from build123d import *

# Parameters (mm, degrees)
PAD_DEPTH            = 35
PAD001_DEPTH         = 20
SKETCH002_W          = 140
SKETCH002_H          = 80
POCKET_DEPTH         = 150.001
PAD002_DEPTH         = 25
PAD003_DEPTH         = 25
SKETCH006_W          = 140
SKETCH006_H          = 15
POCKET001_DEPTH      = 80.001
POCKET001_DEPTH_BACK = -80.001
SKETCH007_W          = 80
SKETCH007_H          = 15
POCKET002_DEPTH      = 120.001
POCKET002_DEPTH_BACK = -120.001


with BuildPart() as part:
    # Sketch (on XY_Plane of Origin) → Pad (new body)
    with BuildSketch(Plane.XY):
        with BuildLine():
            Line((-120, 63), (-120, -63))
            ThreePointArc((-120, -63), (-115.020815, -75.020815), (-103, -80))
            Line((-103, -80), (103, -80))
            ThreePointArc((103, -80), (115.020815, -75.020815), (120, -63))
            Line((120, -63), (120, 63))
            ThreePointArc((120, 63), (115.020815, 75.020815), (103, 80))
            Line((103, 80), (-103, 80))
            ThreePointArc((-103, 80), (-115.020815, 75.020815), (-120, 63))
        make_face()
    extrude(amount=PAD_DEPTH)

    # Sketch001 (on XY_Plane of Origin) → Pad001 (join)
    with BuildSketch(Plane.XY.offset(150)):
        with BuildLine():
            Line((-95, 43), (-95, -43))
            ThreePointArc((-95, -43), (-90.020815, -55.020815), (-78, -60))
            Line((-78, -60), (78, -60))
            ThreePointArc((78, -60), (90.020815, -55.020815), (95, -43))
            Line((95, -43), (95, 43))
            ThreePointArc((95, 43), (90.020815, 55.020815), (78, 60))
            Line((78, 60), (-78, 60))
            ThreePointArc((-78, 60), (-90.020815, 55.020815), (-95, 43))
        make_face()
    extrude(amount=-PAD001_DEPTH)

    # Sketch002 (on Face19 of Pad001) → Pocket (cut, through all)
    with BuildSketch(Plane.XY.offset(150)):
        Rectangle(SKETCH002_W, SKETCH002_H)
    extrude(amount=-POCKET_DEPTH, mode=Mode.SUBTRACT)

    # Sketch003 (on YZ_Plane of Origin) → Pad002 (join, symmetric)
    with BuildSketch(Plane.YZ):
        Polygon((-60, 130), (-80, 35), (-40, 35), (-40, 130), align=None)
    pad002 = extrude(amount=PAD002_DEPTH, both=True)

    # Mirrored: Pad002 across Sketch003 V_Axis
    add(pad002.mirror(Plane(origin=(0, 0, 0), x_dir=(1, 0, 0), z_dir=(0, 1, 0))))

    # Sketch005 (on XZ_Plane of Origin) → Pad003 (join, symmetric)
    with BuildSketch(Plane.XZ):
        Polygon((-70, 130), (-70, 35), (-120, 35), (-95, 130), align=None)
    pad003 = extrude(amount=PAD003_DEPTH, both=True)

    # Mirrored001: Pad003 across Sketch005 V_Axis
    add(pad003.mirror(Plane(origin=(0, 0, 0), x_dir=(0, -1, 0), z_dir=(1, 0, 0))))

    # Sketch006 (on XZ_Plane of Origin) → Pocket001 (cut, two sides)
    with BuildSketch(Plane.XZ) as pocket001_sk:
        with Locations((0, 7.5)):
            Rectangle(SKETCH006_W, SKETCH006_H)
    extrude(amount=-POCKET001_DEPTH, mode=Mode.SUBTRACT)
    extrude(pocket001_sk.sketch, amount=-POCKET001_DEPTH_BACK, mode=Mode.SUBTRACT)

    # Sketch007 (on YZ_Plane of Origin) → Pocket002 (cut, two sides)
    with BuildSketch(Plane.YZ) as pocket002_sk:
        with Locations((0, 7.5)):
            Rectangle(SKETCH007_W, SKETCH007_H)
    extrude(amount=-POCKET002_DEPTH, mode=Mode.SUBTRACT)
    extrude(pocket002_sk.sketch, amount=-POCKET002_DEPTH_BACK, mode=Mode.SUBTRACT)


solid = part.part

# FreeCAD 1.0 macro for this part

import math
import FreeCAD as App
import Part
import Sketcher
Q = App.Units.Quantity

doc = App.newDocument("Part")
body = doc.addObject("PartDesign::Body", "Body")
body.AllowCompound = True

# Sketch on XY plane
sketch1 = doc.addObject("Sketcher::SketchObject", "Sketch")
body.addObject(sketch1)
sketch1.AttachmentSupport = (doc.XY_Plane, [""])
sketch1.MapMode = "FlatFace"
sketch1.addGeometry([
    Part.LineSegment(App.Vector(-120, 63, 0), App.Vector(-120, -63, 0)),  # 0
    Part.ArcOfCircle(Part.Circle(App.Vector(-103, -63, 0), App.Vector(0, 0, 1), 17), math.radians(-180), math.radians(-90)),  # 1
    Part.LineSegment(App.Vector(-103, -80, 0), App.Vector(103, -80, 0)),  # 2
    Part.ArcOfCircle(Part.Circle(App.Vector(103, -63, 0), App.Vector(0, 0, 1), 17), math.radians(-90), math.radians(0)),  # 3
    Part.LineSegment(App.Vector(120, -63, 0), App.Vector(120, 63, 0)),  # 4
    Part.ArcOfCircle(Part.Circle(App.Vector(103, 63, 0), App.Vector(0, 0, 1), 17), math.radians(0), math.radians(90)),  # 5
    Part.LineSegment(App.Vector(103, 80, 0), App.Vector(-103, 80, 0)),  # 6
    Part.ArcOfCircle(Part.Circle(App.Vector(-103, 63, 0), App.Vector(0, 0, 1), 17), math.radians(90), math.radians(180)),  # 7
], False)
sketch1.addConstraint([
    Sketcher.Constraint("Tangent", 0, 2, 1, 1),
    Sketcher.Constraint("Tangent", 1, 2, 2, 1),
    Sketcher.Constraint("Tangent", 2, 2, 3, 1),
    Sketcher.Constraint("Tangent", 3, 2, 4, 1),
    Sketcher.Constraint("Tangent", 4, 2, 5, 1),
    Sketcher.Constraint("Tangent", 5, 2, 6, 1),
    Sketcher.Constraint("Tangent", 6, 2, 7, 1),
    Sketcher.Constraint("Tangent", 7, 2, 0, 1),
    Sketcher.Constraint("Vertical", 0),
    Sketcher.Constraint("Horizontal", 2),
    Sketcher.Constraint("Vertical", 4),
    Sketcher.Constraint("Horizontal", 6),
    Sketcher.Constraint("Equal", 1, 3),
    Sketcher.Constraint("Equal", 3, 5),
    Sketcher.Constraint("Equal", 5, 7),
    Sketcher.Constraint("Symmetric", 1, 3, 5, 3, -1, 1),
    Sketcher.Constraint("Radius", 1, Q("17.000001 mm")),
    Sketcher.Constraint("DistanceX", 2, 1, 2, 2, Q("206 mm")),
    Sketcher.Constraint("DistanceY", 0, 2, 0, 1, Q("126 mm")),
])
pad1 = doc.addObject("PartDesign::Pad", "Pad")
body.addObject(pad1)
pad1.Profile = sketch1
pad1.Length = 35

# Sketch on XY plane
sketch2 = doc.addObject("Sketcher::SketchObject", "Sketch001")
body.addObject(sketch2)
sketch2.AttachmentSupport = (doc.XY_Plane, [""])
sketch2.MapMode = "FlatFace"
sketch2.AttachmentOffset = App.Placement(App.Vector(0, 0, 150), App.Rotation())
sketch2.addGeometry([
    Part.LineSegment(App.Vector(-95, 43, 0), App.Vector(-95, -43, 0)),  # 0
    Part.ArcOfCircle(Part.Circle(App.Vector(-78, -43, 0), App.Vector(0, 0, 1), 17), math.radians(-180), math.radians(-90)),  # 1
    Part.LineSegment(App.Vector(-78, -60, 0), App.Vector(78, -60, 0)),  # 2
    Part.ArcOfCircle(Part.Circle(App.Vector(78, -43, 0), App.Vector(0, 0, 1), 17), math.radians(-90), math.radians(0)),  # 3
    Part.LineSegment(App.Vector(95, -43, 0), App.Vector(95, 43, 0)),  # 4
    Part.ArcOfCircle(Part.Circle(App.Vector(78, 43, 0), App.Vector(0, 0, 1), 17), math.radians(0), math.radians(90)),  # 5
    Part.LineSegment(App.Vector(78, 60, 0), App.Vector(-78, 60, 0)),  # 6
    Part.ArcOfCircle(Part.Circle(App.Vector(-78, 43, 0), App.Vector(0, 0, 1), 17), math.radians(90), math.radians(180)),  # 7
], False)
sketch2.addConstraint([
    Sketcher.Constraint("Tangent", 0, 2, 1, 1),
    Sketcher.Constraint("Tangent", 1, 2, 2, 1),
    Sketcher.Constraint("Tangent", 2, 2, 3, 1),
    Sketcher.Constraint("Tangent", 3, 2, 4, 1),
    Sketcher.Constraint("Tangent", 4, 2, 5, 1),
    Sketcher.Constraint("Tangent", 5, 2, 6, 1),
    Sketcher.Constraint("Tangent", 6, 2, 7, 1),
    Sketcher.Constraint("Tangent", 7, 2, 0, 1),
    Sketcher.Constraint("Vertical", 0),
    Sketcher.Constraint("Horizontal", 2),
    Sketcher.Constraint("Vertical", 4),
    Sketcher.Constraint("Horizontal", 6),
    Sketcher.Constraint("Equal", 1, 3),
    Sketcher.Constraint("Equal", 3, 5),
    Sketcher.Constraint("Equal", 5, 7),
    Sketcher.Constraint("Symmetric", 1, 3, 5, 3, -1, 1),
    Sketcher.Constraint("Radius", 1, Q("17.000001 mm")),
    Sketcher.Constraint("DistanceX", 2, 1, 2, 2, Q("156 mm")),
    Sketcher.Constraint("DistanceY", 0, 2, 0, 1, Q("86 mm")),
])
pad2 = doc.addObject("PartDesign::Pad", "Pad001")
body.addObject(pad2)
pad2.Profile = sketch2
pad2.Length = 20
pad2.Reversed = True

# Sketch on XY plane
sketch3 = doc.addObject("Sketcher::SketchObject", "Sketch002")
body.addObject(sketch3)
sketch3.AttachmentSupport = (doc.XY_Plane, [""])
sketch3.MapMode = "FlatFace"
sketch3.AttachmentOffset = App.Placement(App.Vector(0, 0, 150), App.Rotation())
sketch3.addGeometry([
    Part.LineSegment(App.Vector(-70, 40, 0), App.Vector(-70, -40, 0)),
    Part.LineSegment(App.Vector(-70, -40, 0), App.Vector(70, -40, 0)),
    Part.LineSegment(App.Vector(70, -40, 0), App.Vector(70, 40, 0)),
    Part.LineSegment(App.Vector(70, 40, 0), App.Vector(-70, 40, 0)),
], False)
sketch3.addConstraint([
    Sketcher.Constraint("Coincident", 0, 2, 1, 1),
    Sketcher.Constraint("Coincident", 1, 2, 2, 1),
    Sketcher.Constraint("Coincident", 2, 2, 3, 1),
    Sketcher.Constraint("Coincident", 3, 2, 0, 1),
    Sketcher.Constraint("Vertical", 0),
    Sketcher.Constraint("Horizontal", 1),
    Sketcher.Constraint("Vertical", 2),
    Sketcher.Constraint("Horizontal", 3),
    Sketcher.Constraint("Symmetric", 0, 2, 2, 2, -1, 1),
    Sketcher.Constraint("DistanceX", 1, 1, 1, 2, Q("140 mm")),
    Sketcher.Constraint("DistanceY", 0, 2, 0, 1, Q("80 mm")),
])
pocket1 = doc.addObject("PartDesign::Pocket", "Pocket")
body.addObject(pocket1)
pocket1.Profile = sketch3
pocket1.Type = "ThroughAll"

# Sketch on YZ plane
sketch4 = doc.addObject("Sketcher::SketchObject", "Sketch003")
body.addObject(sketch4)
sketch4.AttachmentSupport = (doc.YZ_Plane, [""])
sketch4.MapMode = "FlatFace"
sketch4.addGeometry([
    Part.LineSegment(App.Vector(-60, 130, 0), App.Vector(-80, 35, 0)),
    Part.LineSegment(App.Vector(-80, 35, 0), App.Vector(-40, 35, 0)),
    Part.LineSegment(App.Vector(-40, 35, 0), App.Vector(-40, 130, 0)),
    Part.LineSegment(App.Vector(-40, 130, 0), App.Vector(-60, 130, 0)),
], False)
sketch4.addConstraint([
    Sketcher.Constraint("Coincident", 0, 2, 1, 1),
    Sketcher.Constraint("Coincident", 1, 2, 2, 1),
    Sketcher.Constraint("Coincident", 2, 2, 3, 1),
    Sketcher.Constraint("Coincident", 3, 2, 0, 1),
    Sketcher.Constraint("Horizontal", 1),
    Sketcher.Constraint("Vertical", 2),
    Sketcher.Constraint("Horizontal", 3),
    Sketcher.Constraint("DistanceX", 1, 1, 1, 2, Q("40 mm")),
    Sketcher.Constraint("DistanceX", 3, 2, 3, 1, Q("20 mm")),
    Sketcher.Constraint("DistanceY", 2, 1, 2, 2, Q("95 mm")),
    Sketcher.Constraint("DistanceX", 0, 2, -1, 1, Q("80 mm")),
    Sketcher.Constraint("DistanceY", -1, 1, 0, 2, Q("35 mm")),
])
pad3 = doc.addObject("PartDesign::Pad", "Pad002")
body.addObject(pad3)
pad3.Profile = sketch4
pad3.Length = 50
pad3.Midplane = True
doc.recompute()

mirrored = doc.addObject("PartDesign::Mirrored", "Mirrored")
body.addObject(mirrored)
mirrored.Originals = [pad3]
mirrored.MirrorPlane = (doc.XZ_Plane, [""])
body.Tip = mirrored

# Sketch on XZ plane
sketch5 = doc.addObject("Sketcher::SketchObject", "Sketch004")
body.addObject(sketch5)
sketch5.AttachmentSupport = (doc.XZ_Plane, [""])
sketch5.MapMode = "FlatFace"
sketch5.addGeometry([
    Part.LineSegment(App.Vector(-70, 35, 0), App.Vector(-70, 130, 0)),
    Part.LineSegment(App.Vector(-70, 130, 0), App.Vector(-95, 130, 0)),
    Part.LineSegment(App.Vector(-95, 130, 0), App.Vector(-120, 35, 0)),
    Part.LineSegment(App.Vector(-120, 35, 0), App.Vector(-70, 35, 0)),
], False)
sketch5.addConstraint([
    Sketcher.Constraint("Coincident", 0, 2, 1, 1),
    Sketcher.Constraint("Coincident", 1, 2, 2, 1),
    Sketcher.Constraint("Coincident", 2, 2, 3, 1),
    Sketcher.Constraint("Coincident", 3, 2, 0, 1),
    Sketcher.Constraint("Vertical", 0),
    Sketcher.Constraint("Horizontal", 1),
    Sketcher.Constraint("Horizontal", 3),
    Sketcher.Constraint("DistanceX", 1, 2, 1, 1, Q("25 mm")),
    Sketcher.Constraint("DistanceX", 3, 1, 3, 2, Q("50 mm")),
    Sketcher.Constraint("DistanceY", 0, 1, 0, 2, Q("95 mm")),
    Sketcher.Constraint("DistanceX", 0, 2, -1, 1, Q("70 mm")),
    Sketcher.Constraint("DistanceY", -1, 1, 0, 2, Q("130 mm")),
])
pad4 = doc.addObject("PartDesign::Pad", "Pad003")
body.addObject(pad4)
pad4.Profile = sketch5
pad4.Length = 50
pad4.Midplane = True
doc.recompute()

mirrored2 = doc.addObject("PartDesign::Mirrored", "Mirrored001")
body.addObject(mirrored2)
mirrored2.Originals = [pad4]
mirrored2.MirrorPlane = (doc.YZ_Plane, [""])
body.Tip = mirrored2

# Sketch on XZ plane
sketch6 = doc.addObject("Sketcher::SketchObject", "Sketch005")
body.addObject(sketch6)
sketch6.AttachmentSupport = (doc.XZ_Plane, [""])
sketch6.MapMode = "FlatFace"
sketch6.addGeometry([
    Part.LineSegment(App.Vector(-70, 15, 0), App.Vector(-70, 0, 0)),
    Part.LineSegment(App.Vector(-70, 0, 0), App.Vector(70, 0, 0)),
    Part.LineSegment(App.Vector(70, 0, 0), App.Vector(70, 15, 0)),
    Part.LineSegment(App.Vector(70, 15, 0), App.Vector(-70, 15, 0)),
], False)
sketch6.addConstraint([
    Sketcher.Constraint("Coincident", 0, 2, 1, 1),
    Sketcher.Constraint("Coincident", 1, 2, 2, 1),
    Sketcher.Constraint("Coincident", 2, 2, 3, 1),
    Sketcher.Constraint("Coincident", 3, 2, 0, 1),
    Sketcher.Constraint("Vertical", 0),
    Sketcher.Constraint("Horizontal", 1),
    Sketcher.Constraint("Vertical", 2),
    Sketcher.Constraint("Horizontal", 3),
    Sketcher.Constraint("Symmetric", 0, 2, 1, 2, -1, 1),
    Sketcher.Constraint("DistanceX", 1, 1, 1, 2, Q("140 mm")),
    Sketcher.Constraint("DistanceY", 0, 2, 0, 1, Q("15 mm")),
])
pocket2 = doc.addObject("PartDesign::Pocket", "Pocket001")
body.addObject(pocket2)
pocket2.Profile = sketch6
pocket2.Type = "ThroughAll"
pocket2.Midplane = True

# Sketch on YZ plane
sketch7 = doc.addObject("Sketcher::SketchObject", "Sketch006")
body.addObject(sketch7)
sketch7.AttachmentSupport = (doc.YZ_Plane, [""])
sketch7.MapMode = "FlatFace"
sketch7.addGeometry([
    Part.LineSegment(App.Vector(-40, 15, 0), App.Vector(-40, 0, 0)),
    Part.LineSegment(App.Vector(-40, 0, 0), App.Vector(40, 0, 0)),
    Part.LineSegment(App.Vector(40, 0, 0), App.Vector(40, 15, 0)),
    Part.LineSegment(App.Vector(40, 15, 0), App.Vector(-40, 15, 0)),
], False)
sketch7.addConstraint([
    Sketcher.Constraint("Coincident", 0, 2, 1, 1),
    Sketcher.Constraint("Coincident", 1, 2, 2, 1),
    Sketcher.Constraint("Coincident", 2, 2, 3, 1),
    Sketcher.Constraint("Coincident", 3, 2, 0, 1),
    Sketcher.Constraint("Vertical", 0),
    Sketcher.Constraint("Horizontal", 1),
    Sketcher.Constraint("Vertical", 2),
    Sketcher.Constraint("Horizontal", 3),
    Sketcher.Constraint("Symmetric", 0, 2, 1, 2, -1, 1),
    Sketcher.Constraint("DistanceX", 1, 1, 1, 2, Q("80 mm")),
    Sketcher.Constraint("DistanceY", 0, 2, 0, 1, Q("15 mm")),
])
pocket3 = doc.addObject("PartDesign::Pocket", "Pocket002")
body.addObject(pocket3)
pocket3.Profile = sketch7
pocket3.Type = "ThroughAll"
pocket3.Midplane = True

doc.recompute()
